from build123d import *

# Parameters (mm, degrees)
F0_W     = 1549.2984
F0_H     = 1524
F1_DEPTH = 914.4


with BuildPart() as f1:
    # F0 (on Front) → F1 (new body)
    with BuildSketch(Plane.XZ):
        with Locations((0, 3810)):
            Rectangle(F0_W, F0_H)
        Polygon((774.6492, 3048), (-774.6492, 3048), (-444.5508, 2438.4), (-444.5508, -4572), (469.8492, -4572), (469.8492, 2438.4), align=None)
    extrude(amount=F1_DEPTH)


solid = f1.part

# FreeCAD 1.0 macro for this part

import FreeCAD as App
import Part
import Sketcher
from FreeCAD import Vector
Q = App.Units.Quantity


def add_polygon(sketch, points):
    """Adds a closed chain of lines whose ends are joined by coincident constraints."""
    first, n = sketch.GeometryCount, len(points)
    for a, b in zip(points, points[1:] + points[:1]):
        sketch.addGeometry(Part.LineSegment(App.Vector(*a, 0), App.Vector(*b, 0)), False)
    for i in range(n):
        sketch.addConstraint(Sketcher.Constraint("Coincident", first + i, 2, first + (i + 1) % n, 1))

doc = App.newDocument("Part")
body = doc.addObject("PartDesign::Body", "Body")

# Sketch on XZ plane
sketch1 = body.newObject("Sketcher::SketchObject", "Sketch")
sketch1.AttachmentSupport = (doc.getObject("XZ_Plane"), [""])
sketch1.MapMode = "FlatFace"
add_polygon(sketch1, [(-775, 4572), (-775, 3048), (-445, 2438), (-445, -4572), (470, -4572), (470, 2438), (775, 3048), (775, 4572)])  # lines 0-7
sketch1.addConstraint(Sketcher.Constraint("Vertical", 0))
sketch1.addConstraint(Sketcher.Constraint("Vertical", 2))
sketch1.addConstraint(Sketcher.Constraint("Horizontal", 3))
sketch1.addConstraint(Sketcher.Constraint("Vertical", 4))
sketch1.addConstraint(Sketcher.Constraint("Vertical", 6))
sketch1.addConstraint(Sketcher.Constraint("Horizontal", 7))
sketch1.addConstraint(Sketcher.Constraint("Symmetric", 0, 2, 5, 2, -2))
sketch1.addConstraint(Sketcher.Constraint("Horizontal", 1, 2, 4, 2))
sketch1.addConstraint(Sketcher.Constraint("DistanceX", 3, 1, 3, 2, Q("36 in")))
sketch1.addConstraint(Sketcher.Constraint("DistanceY", 0, 2, 0, 1, Q("60 in")))
sketch1.addConstraint(Sketcher.Constraint("DistanceY", 2, 2, 2, 1, Q("276 in")))
sketch1.addConstraint(Sketcher.Constraint("DistanceY", -1, 1, 0, 2, Q("120 in")))
sketch1.addConstraint(Sketcher.Constraint("DistanceY", -1, 1, 1, 2, Q("96 in")))
sketch1.addConstraint(Sketcher.Constraint("DistanceX", 4, 2, 5, 2, Q("12 in")))
sketch1.addConstraint(Sketcher.Constraint("DistanceX", 7, 2, 7, 1, Q("60.996 in")))
pad1 = body.newObject("PartDesign::Pad", "Pad")
pad1.Profile = sketch1
pad1.Length = Q("36 in")

doc.recompute()
